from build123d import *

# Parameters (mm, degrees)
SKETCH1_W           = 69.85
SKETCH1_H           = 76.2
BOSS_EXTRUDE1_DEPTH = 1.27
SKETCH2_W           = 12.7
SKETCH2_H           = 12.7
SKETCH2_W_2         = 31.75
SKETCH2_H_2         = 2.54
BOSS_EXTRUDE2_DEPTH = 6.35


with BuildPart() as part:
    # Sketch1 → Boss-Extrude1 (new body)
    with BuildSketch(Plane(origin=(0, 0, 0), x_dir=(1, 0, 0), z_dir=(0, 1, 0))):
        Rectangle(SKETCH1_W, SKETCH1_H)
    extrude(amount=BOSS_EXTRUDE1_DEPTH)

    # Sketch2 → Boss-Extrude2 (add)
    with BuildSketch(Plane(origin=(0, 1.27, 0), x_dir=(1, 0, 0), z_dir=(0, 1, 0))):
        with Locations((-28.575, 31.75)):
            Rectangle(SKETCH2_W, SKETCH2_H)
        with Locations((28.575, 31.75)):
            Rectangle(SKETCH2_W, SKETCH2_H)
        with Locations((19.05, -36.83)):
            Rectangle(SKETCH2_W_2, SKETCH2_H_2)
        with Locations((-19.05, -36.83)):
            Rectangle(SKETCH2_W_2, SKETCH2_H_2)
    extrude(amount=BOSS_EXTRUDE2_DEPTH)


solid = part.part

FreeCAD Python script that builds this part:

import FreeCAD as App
import Part
import Sketcher
from FreeCAD import Vector
Q = App.Units.Quantity

doc = App.newDocument("Part")
body = doc.addObject("PartDesign::Body", "Body")

# Sketch on XZ plane
sketch1 = body.newObject("Sketcher::SketchObject", "Sketch")
sketch1.AttachmentSupport = (doc.getObject("XZ_Plane"), [""])
sketch1.MapMode = "FlatFace"
sketch1.addGeometry(Part.LineSegment(Vector(-34.925, -38.1, 0), Vector(-34.925, 38.1, 0)), False)
sketch1.addGeometry(Part.LineSegment(Vector(-34.925, 38.1, 0), Vector(34.925, 38.1, 0)), False)
sketch1.addGeometry(Part.LineSegment(Vector(34.925, 38.1, 0), Vector(34.925, -38.1, 0)), False)
sketch1.addGeometry(Part.LineSegment(Vector(34.925, -38.1, 0), Vector(-34.925, -38.1, 0)), False)
sketch1.addConstraint(Sketcher.Constraint("Coincident", 0, 2, 1, 1))
sketch1.addConstraint(Sketcher.Constraint("Coincident", 1, 2, 2, 1))
sketch1.addConstraint(Sketcher.Constraint("Coincident", 2, 2, 3, 1))
sketch1.addConstraint(Sketcher.Constraint("Coincident", 3, 2, 0, 1))
sketch1.addConstraint(Sketcher.Constraint("Vertical", 0))
sketch1.addConstraint(Sketcher.Constraint("Horizontal", 1))
sketch1.addConstraint(Sketcher.Constraint("Vertical", 2))
sketch1.addConstraint(Sketcher.Constraint("Horizontal", 3))
sketch1.addConstraint(Sketcher.Constraint("Symmetric", 0, 2, 2, 2, -1, 1))
sketch1.addConstraint(Sketcher.Constraint("DistanceY", 0, 1, 0, 2, Q("3 in")))
sketch1.addConstraint(Sketcher.Constraint("DistanceX", 1, 1, 1, 2, Q("2.75 in")))
pad1 = body.newObject("PartDesign::Pad", "Pad")
pad1.Profile = sketch1
pad1.Length = Q("0.05 in")
pad1.Reversed = True

# Sketch on XZ plane
sketch2 = body.newObject("Sketcher::SketchObject", "Sketch001")
sketch2.AttachmentSupport = (doc.getObject("XZ_Plane"), [""])
sketch2.MapMode = "FlatFace"
sketch2.AttachmentOffset = App.Placement(Vector(0, 0, -0.05 * 25.4), App.Rotation())
sketch2.addGeometry(Part.LineSegment(Vector(-34.925, -38.1, 0), Vector(-34.925, -25.4, 0)), False)
sketch2.addGeometry(Part.LineSegment(Vector(-34.925, -25.4, 0), Vector(-22.225, -25.4, 0)), False)
sketch2.addGeometry(Part.LineSegment(Vector(-22.225, -25.4, 0), Vector(-22.225, -38.1, 0)), False)
sketch2.addGeometry(Part.LineSegment(Vector(-22.225, -38.1, 0), Vector(-34.925, -38.1, 0)), False)
sketch2.addGeometry(Part.LineSegment(Vector(22.225, -38.1, 0), Vector(22.225, -25.4, 0)), False)
sketch2.addGeometry(Part.LineSegment(Vector(22.225, -25.4, 0), Vector(34.925, -25.4, 0)), False)
sketch2.addGeometry(Part.LineSegment(Vector(34.925, -25.4, 0), Vector(34.925, -38.1, 0)), False)
sketch2.addGeometry(Part.LineSegment(Vector(34.925, -38.1, 0), Vector(22.225, -38.1, 0)), False)
sketch2.addGeometry(Part.LineSegment(Vector(3.175, 35.56, 0), Vector(3.175, 38.1, 0)), False)
sketch2.addGeometry(Part.LineSegment(Vector(3.175, 38.1, 0), Vector(34.925, 38.1, 0)), False)
sketch2.addGeometry(Part.LineSegment(Vector(34.925, 38.1, 0), Vector(34.925, 35.56, 0)), False)
sketch2.addGeometry(Part.LineSegment(Vector(34.925, 35.56, 0), Vector(3.175, 35.56, 0)), False)
sketch2.addGeometry(Part.LineSegment(Vector(-34.925, 35.56, 0), Vector(-34.925, 38.1, 0)), False)
sketch2.addGeometry(Part.LineSegment(Vector(-34.925, 38.1, 0), Vector(-3.175, 38.1, 0)), False)
sketch2.addGeometry(Part.LineSegment(Vector(-3.175, 38.1, 0), Vector(-3.175, 35.56, 0)), False)
sketch2.addGeometry(Part.LineSegment(Vector(-3.175, 35.56, 0), Vector(-34.925, 35.56, 0)), False)
sketch2.addConstraint(Sketcher.Constraint("Coincident", 0, 2, 1, 1))
sketch2.addConstraint(Sketcher.Constraint("Coincident", 1, 2, 2, 1))
sketch2.addConstraint(Sketcher.Constraint("Coincident", 2, 2, 3, 1))
sketch2.addConstraint(Sketcher.Constraint("Coincident", 3, 2, 0, 1))
sketch2.addConstraint(Sketcher.Constraint("Coincident", 4, 2, 5, 1))
sketch2.addConstraint(Sketcher.Constraint("Coincident", 5, 2, 6, 1))
sketch2.addConstraint(Sketcher.Constraint("Coincident", 6, 2, 7, 1))
sketch2.addConstraint(Sketcher.Constraint("Coincident", 7, 2, 4, 1))
sketch2.addConstraint(Sketcher.Constraint("Coincident", 8, 2, 9, 1))
sketch2.addConstraint(Sketcher.Constraint("Coincident", 9, 2, 10, 1))
sketch2.addConstraint(Sketcher.Constraint("Coincident", 10, 2, 11, 1))
sketch2.addConstraint(Sketcher.Constraint("Coincident", 11, 2, 8, 1))
sketch2.addConstraint(Sketcher.Constraint("Coincident", 12, 2, 13, 1))
sketch2.addConstraint(Sketcher.Constraint("Coincident", 13, 2, 14, 1))
sketch2.addConstraint(Sketcher.Constraint("Coincident", 14, 2, 15, 1))
sketch2.addConstraint(Sketcher.Constraint("Coincident", 15, 2, 12, 1))
sketch2.addConstraint(Sketcher.Constraint("Vertical", 0))
sketch2.addConstraint(Sketcher.Constraint("Horizontal", 1))
sketch2.addConstraint(Sketcher.Constraint("Vertical", 2))
sketch2.addConstraint(Sketcher.Constraint("Horizontal", 3))
sketch2.addConstraint(Sketcher.Constraint("Vertical", 4))
sketch2.addConstraint(Sketcher.Constraint("Horizontal", 5))
sketch2.addConstraint(Sketcher.Constraint("Vertical", 6))
sketch2.addConstraint(Sketcher.Constraint("Horizontal", 7))
sketch2.addConstraint(Sketcher.Constraint("Vertical", 8))
sketch2.addConstraint(Sketcher.Constraint("Horizontal", 9))
sketch2.addConstraint(Sketcher.Constraint("Vertical", 10))
sketch2.addConstraint(Sketcher.Constraint("Horizontal", 11))
sketch2.addConstraint(Sketcher.Constraint("Vertical", 12))
sketch2.addConstraint(Sketcher.Constraint("Horizontal", 13))
sketch2.addConstraint(Sketcher.Constraint("Vertical", 14))
sketch2.addConstraint(Sketcher.Constraint("Horizontal", 15))
sketch2.addConstraint(Sketcher.Constraint("Symmetric", 3, 2, 9, 2, -1, 1))
sketch2.addConstraint(Sketcher.Constraint("Symmetric", 6, 2, 12, 2, -1, 1))
sketch2.addConstraint(Sketcher.Constraint("Symmetric", 1, 2, 4, 2, -2))
sketch2.addConstraint(Sketcher.Constraint("Symmetric", 3, 2, 6, 2, -2))
sketch2.addConstraint(Sketcher.Constraint("Symmetric", 11, 2, 14, 2, -2))
sketch2.addConstraint(Sketcher.Constraint("Equal", 7, 0))
sketch2.addConstraint(Sketcher.Constraint("DistanceX", 1, 1, 1, 2, Q("0.5 in")))
sketch2.addConstraint(Sketcher.Constraint("DistanceY", 8, 1, 8, 2, Q("0.1 in")))
sketch2.addConstraint(Sketcher.Constraint("DistanceY", 0, 2, -1, 1, Q("1 in")))
sketch2.addConstraint(Sketcher.Constraint("DistanceX", 1, 2, 8, 2, Q("1 in")))
sketch2.addConstraint(Sketcher.Constraint("DistanceX", 9, 1, 9, 2, Q("1.25 in")))
pad2 = body.newObject("PartDesign::Pad", "Pad001")
pad2.Profile = sketch2
pad2.Length = Q("0.25 in")
pad2.Reversed = True

doc.recompute()
